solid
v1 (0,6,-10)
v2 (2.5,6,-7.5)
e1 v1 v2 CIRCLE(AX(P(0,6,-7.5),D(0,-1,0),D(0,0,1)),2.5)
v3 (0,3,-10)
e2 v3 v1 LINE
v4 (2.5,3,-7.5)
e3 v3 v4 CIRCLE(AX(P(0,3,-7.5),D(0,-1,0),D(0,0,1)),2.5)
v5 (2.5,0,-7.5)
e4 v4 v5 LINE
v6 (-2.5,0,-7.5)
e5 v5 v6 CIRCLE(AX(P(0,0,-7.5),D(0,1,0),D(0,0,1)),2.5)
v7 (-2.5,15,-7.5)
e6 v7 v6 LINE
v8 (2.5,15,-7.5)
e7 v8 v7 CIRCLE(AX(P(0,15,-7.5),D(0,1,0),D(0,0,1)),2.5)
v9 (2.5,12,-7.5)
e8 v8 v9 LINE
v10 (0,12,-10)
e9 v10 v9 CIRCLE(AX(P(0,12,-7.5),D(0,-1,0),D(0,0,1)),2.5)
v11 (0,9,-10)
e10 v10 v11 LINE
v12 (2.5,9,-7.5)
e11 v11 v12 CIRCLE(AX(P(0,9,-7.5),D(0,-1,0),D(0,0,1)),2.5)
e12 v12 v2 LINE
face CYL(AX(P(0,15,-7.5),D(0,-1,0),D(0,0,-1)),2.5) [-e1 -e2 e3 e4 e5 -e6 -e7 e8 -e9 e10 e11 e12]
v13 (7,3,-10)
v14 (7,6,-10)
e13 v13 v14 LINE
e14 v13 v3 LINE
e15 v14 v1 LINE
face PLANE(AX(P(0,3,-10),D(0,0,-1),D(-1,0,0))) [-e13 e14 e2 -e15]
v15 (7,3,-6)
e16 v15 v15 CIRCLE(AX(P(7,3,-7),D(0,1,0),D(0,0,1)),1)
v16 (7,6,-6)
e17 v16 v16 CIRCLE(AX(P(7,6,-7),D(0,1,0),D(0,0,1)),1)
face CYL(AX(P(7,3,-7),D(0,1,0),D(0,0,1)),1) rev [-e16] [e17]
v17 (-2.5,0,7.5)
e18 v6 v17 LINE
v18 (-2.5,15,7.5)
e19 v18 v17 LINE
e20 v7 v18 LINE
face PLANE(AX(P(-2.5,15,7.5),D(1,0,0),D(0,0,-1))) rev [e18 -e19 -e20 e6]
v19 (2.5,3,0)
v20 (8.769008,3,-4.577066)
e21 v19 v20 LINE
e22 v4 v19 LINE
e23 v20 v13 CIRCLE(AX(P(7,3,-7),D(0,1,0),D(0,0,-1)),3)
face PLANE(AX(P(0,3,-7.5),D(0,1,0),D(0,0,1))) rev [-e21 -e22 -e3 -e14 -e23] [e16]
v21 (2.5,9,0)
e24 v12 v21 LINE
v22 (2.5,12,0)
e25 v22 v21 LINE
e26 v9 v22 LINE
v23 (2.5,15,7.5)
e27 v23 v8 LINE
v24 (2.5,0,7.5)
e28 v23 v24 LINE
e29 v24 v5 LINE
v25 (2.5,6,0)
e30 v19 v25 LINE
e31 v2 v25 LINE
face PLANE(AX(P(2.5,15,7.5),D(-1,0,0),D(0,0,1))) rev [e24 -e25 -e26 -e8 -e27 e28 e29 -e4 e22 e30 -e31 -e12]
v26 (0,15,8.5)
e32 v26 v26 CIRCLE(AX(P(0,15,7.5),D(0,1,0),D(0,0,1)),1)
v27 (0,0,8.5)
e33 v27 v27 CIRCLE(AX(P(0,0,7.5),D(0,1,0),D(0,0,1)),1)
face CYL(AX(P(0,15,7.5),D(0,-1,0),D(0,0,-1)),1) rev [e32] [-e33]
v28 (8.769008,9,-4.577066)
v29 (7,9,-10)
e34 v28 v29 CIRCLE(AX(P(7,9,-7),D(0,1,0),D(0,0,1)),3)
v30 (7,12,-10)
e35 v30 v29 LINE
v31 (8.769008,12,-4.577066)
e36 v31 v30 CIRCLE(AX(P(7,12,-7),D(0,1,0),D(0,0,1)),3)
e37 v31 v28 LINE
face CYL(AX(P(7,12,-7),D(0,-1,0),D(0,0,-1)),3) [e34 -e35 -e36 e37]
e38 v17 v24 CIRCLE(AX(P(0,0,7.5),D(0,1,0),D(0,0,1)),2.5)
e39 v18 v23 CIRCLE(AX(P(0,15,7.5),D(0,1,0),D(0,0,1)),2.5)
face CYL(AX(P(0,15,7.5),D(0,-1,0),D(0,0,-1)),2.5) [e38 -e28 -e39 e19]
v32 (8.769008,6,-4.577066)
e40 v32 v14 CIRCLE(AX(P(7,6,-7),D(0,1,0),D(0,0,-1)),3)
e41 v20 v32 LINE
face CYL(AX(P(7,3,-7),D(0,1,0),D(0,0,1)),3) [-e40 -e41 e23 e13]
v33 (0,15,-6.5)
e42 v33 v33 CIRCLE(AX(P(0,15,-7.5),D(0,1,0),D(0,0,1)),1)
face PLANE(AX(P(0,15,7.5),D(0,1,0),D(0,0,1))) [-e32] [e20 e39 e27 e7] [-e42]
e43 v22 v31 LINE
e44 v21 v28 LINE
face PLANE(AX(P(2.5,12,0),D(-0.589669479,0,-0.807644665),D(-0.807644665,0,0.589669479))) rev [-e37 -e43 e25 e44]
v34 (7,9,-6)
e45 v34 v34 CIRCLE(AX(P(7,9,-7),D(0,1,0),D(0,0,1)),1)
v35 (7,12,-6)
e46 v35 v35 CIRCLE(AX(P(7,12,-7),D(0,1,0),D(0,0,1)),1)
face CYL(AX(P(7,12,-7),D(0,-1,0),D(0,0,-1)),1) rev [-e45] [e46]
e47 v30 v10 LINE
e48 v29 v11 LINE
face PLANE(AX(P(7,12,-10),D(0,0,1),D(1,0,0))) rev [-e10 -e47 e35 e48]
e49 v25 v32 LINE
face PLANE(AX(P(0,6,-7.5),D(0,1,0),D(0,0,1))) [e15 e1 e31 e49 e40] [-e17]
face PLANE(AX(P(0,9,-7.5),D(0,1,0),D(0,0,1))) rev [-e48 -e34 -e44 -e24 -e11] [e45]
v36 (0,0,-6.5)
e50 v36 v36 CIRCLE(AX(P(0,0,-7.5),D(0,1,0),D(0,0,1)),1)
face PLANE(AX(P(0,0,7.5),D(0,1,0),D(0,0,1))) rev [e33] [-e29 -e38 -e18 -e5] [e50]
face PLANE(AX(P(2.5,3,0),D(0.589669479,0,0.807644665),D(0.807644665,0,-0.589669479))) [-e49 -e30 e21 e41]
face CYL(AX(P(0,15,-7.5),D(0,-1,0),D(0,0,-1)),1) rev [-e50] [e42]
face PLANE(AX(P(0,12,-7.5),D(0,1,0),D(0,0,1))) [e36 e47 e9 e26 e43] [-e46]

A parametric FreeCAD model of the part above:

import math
import FreeCAD as App
import Part
import Sketcher
Q = App.Units.Quantity

doc = App.newDocument("Part")
body = doc.addObject("PartDesign::Body", "Body")

sketch1 = body.newObject("Sketcher::SketchObject", "Sketch")
sketch1.AttachmentSupport = (doc.getObject("XZ_Plane"), [""])
sketch1.MapMode = "FlatFace"
sketch1.addGeometry(Part.LineSegment(App.Vector(-2.5, -7.5, 0), App.Vector(-2.5, 7.5, 0)), False)
sketch1.addGeometry(Part.ArcOfCircle(Part.Circle(App.Vector(0, 7.5, 0), App.Vector(0, 0, 1), 2.5), math.radians(0), math.radians(180)), False)
sketch1.addGeometry(Part.LineSegment(App.Vector(2.5, 7.5, 0), App.Vector(2.5, -7.5, 0)), False)
sketch1.addGeometry(Part.ArcOfCircle(Part.Circle(App.Vector(0, -7.5, 0), App.Vector(0, 0, 1), 2.5), math.radians(180), math.radians(360)), False)
sketch1.addGeometry(Part.Circle(App.Vector(0, 7.5, 0), App.Vector(0, 0, 1), 1), False)
sketch1.addGeometry(Part.Circle(App.Vector(0, -7.5, 0), App.Vector(0, 0, 1), 1), False)
sketch1.addConstraint(Sketcher.Constraint("Tangent", 0, 2, 1, 2))
sketch1.addConstraint(Sketcher.Constraint("Tangent", 1, 1, 2, 1))
sketch1.addConstraint(Sketcher.Constraint("Tangent", 2, 2, 3, 2))
sketch1.addConstraint(Sketcher.Constraint("Tangent", 3, 1, 0, 1))
sketch1.addConstraint(Sketcher.Constraint("Vertical", 0))
sketch1.addConstraint(Sketcher.Constraint("Vertical", 2))
sketch1.addConstraint(Sketcher.Constraint("Coincident", 4, 3, 1, 3))
sketch1.addConstraint(Sketcher.Constraint("Coincident", 5, 3, 3, 3))
sketch1.addConstraint(Sketcher.Constraint("Equal", 4, 5))
sketch1.addConstraint(Sketcher.Constraint("Symmetric", 1, 3, 3, 3, -1, 1))
sketch1.addConstraint(Sketcher.Constraint("Diameter", 4, Q("2 mm")))
sketch1.addConstraint(Sketcher.Constraint("Radius", 1, Q("2.5 mm")))
sketch1.addConstraint(Sketcher.Constraint("DistanceY", 0, 1, 0, 2, Q("15 mm")))
pad1 = body.newObject("PartDesign::Pad", "Pad")
pad1.Profile = sketch1
pad1.Length = 15
pad1.Reversed = True

sketch2 = body.newObject("Sketcher::SketchObject", "Sketch001")
sketch2.AttachmentSupport = (doc.getObject("XZ_Plane"), [""])
sketch2.MapMode = "FlatFace"
sketch2.AttachmentOffset = App.Placement(App.Vector(0, 0, -3), App.Rotation())
sketch2.addGeometry(Part.LineSegment(App.Vector(2.5, -7.5, 0), App.Vector(2.5, 0, 0)), False)
sketch2.addGeometry(Part.LineSegment(App.Vector(2.5, 0, 0), App.Vector(8.8, -4.6, 0)), False)
sketch2.addGeometry(Part.ArcOfCircle(Part.Circle(App.Vector(7, -7, 0), App.Vector(0, 0, 1), 3), math.radians(-90), math.radians(54)), False)
sketch2.addGeometry(Part.LineSegment(App.Vector(7, -10, 0), App.Vector(0, -10, 0)), False)
sketch2.addGeometry(Part.ArcOfCircle(Part.Circle(App.Vector(0, -7.5, 0), App.Vector(0, 0, 1), 2.5), math.radians(-90), math.radians(0)), False)
sketch2.addGeometry(Part.Circle(App.Vector(7, -7, 0), App.Vector(0, 0, 1), 1), False)
sketch2.addConstraint(Sketcher.Constraint("Coincident", 0, 2, 1, 1))
sketch2.addConstraint(Sketcher.Constraint("Tangent", 1, 2, 2, 2))
sketch2.addConstraint(Sketcher.Constraint("Tangent", 2, 1, 3, 1))
sketch2.addConstraint(Sketcher.Constraint("Tangent", 3, 2, 4, 1))
sketch2.addConstraint(Sketcher.Constraint("Tangent", 4, 2, 0, 1))
sketch2.addConstraint(Sketcher.Constraint("Vertical", 0))
sketch2.addConstraint(Sketcher.Constraint("Horizontal", 3))
sketch2.addConstraint(Sketcher.Constraint("Coincident", 5, 3, 2, 3))
sketch2.addConstraint(Sketcher.Constraint("PointOnObject", 4, 3, -2))
sketch2.addConstraint(Sketcher.Constraint("PointOnObject", 0, 2, -1))
sketch2.addConstraint(Sketcher.Constraint("Diameter", 5, Q("2 mm")))
sketch2.addConstraint(Sketcher.Constraint("Radius", 2, Q("3 mm")))
sketch2.addConstraint(Sketcher.Constraint("Radius", 4, Q("2.5 mm")))
sketch2.addConstraint(Sketcher.Constraint("DistanceX", 3, 2, 3, 1, Q("7 mm")))
sketch2.addConstraint(Sketcher.Constraint("DistanceY", 0, 1, 0, 2, Q("7.5 mm")))
pad2 = body.newObject("PartDesign::Pad", "Pad001")
pad2.Profile = sketch2
pad2.Length = 3
pad2.Reversed = True

sketch3 = body.newObject("Sketcher::SketchObject", "Sketch002")
sketch3.AttachmentSupport = (doc.getObject("XZ_Plane"), [""])
sketch3.MapMode = "FlatFace"
sketch3.AttachmentOffset = App.Placement(App.Vector(0, 0, -9), App.Rotation())
sketch3.addGeometry(Part.LineSegment(App.Vector(7, -10, 0), App.Vector(0, -10, 0)), False)
sketch3.addGeometry(Part.ArcOfCircle(Part.Circle(App.Vector(0, -7.5, 0), App.Vector(0, 0, 1), 2.5), math.radians(-90), math.radians(0)), False)
sketch3.addGeometry(Part.LineSegment(App.Vector(2.5, -7.5, 0), App.Vector(2.5, 0, 0)), False)
sketch3.addGeometry(Part.LineSegment(App.Vector(2.5, 0, 0), App.Vector(8.8, -4.6, 0)), False)
sketch3.addGeometry(Part.ArcOfCircle(Part.Circle(App.Vector(7, -7, 0), App.Vector(0, 0, 1), 3), math.radians(-90), math.radians(54)), False)
sketch3.addGeometry(Part.Circle(App.Vector(7, -7, 0), App.Vector(0, 0, 1), 1), False)
sketch3.addConstraint(Sketcher.Constraint("Tangent", 0, 2, 1, 1))
sketch3.addConstraint(Sketcher.Constraint("Tangent", 1, 2, 2, 1))
sketch3.addConstraint(Sketcher.Constraint("Coincident", 2, 2, 3, 1))
sketch3.addConstraint(Sketcher.Constraint("Tangent", 3, 2, 4, 2))
sketch3.addConstraint(Sketcher.Constraint("Tangent", 4, 1, 0, 1))
sketch3.addConstraint(Sketcher.Constraint("Horizontal", 0))
sketch3.addConstraint(Sketcher.Constraint("Vertical", 2))
sketch3.addConstraint(Sketcher.Constraint("Coincident", 5, 3, 4, 3))
sketch3.addConstraint(Sketcher.Constraint("PointOnObject", 1, 3, -2))
sketch3.addConstraint(Sketcher.Constraint("PointOnObject", 2, 2, -1))
sketch3.addConstraint(Sketcher.Constraint("Diameter", 5, Q("2 mm")))
sketch3.addConstraint(Sketcher.Constraint("Radius", 4, Q("3 mm")))
sketch3.addConstraint(Sketcher.Constraint("Radius", 1, Q("2.5 mm")))
sketch3.addConstraint(Sketcher.Constraint("DistanceX", 0, 2, 0, 1, Q("7 mm")))
sketch3.addConstraint(Sketcher.Constraint("DistanceY", 2, 1, 2, 2, Q("7.5 mm")))
pad3 = body.newObject("PartDesign::Pad", "Pad002")
pad3.Profile = sketch3
pad3.Length = 3
pad3.Reversed = True

doc.recompute()
